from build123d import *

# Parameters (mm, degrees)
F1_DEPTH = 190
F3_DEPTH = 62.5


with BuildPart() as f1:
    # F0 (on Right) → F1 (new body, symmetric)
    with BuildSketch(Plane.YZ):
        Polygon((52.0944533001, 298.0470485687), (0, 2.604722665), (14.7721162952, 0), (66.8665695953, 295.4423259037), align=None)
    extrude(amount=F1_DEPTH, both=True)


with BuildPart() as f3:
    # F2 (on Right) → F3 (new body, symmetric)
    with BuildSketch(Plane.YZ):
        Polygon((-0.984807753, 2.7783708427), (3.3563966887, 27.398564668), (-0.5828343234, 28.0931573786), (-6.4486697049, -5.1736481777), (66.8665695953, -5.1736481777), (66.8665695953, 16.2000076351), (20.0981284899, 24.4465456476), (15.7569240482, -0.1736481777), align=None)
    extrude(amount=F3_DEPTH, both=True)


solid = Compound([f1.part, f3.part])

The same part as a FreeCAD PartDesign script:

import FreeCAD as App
import Part
import Sketcher
from FreeCAD import Vector
Q = App.Units.Quantity


def add_polygon(sketch, points):
    """Adds a closed chain of lines whose ends are joined by coincident constraints."""
    first, n = sketch.GeometryCount, len(points)
    for a, b in zip(points, points[1:] + points[:1]):
        sketch.addGeometry(Part.LineSegment(App.Vector(*a, 0), App.Vector(*b, 0)), False)
    for i in range(n):
        sketch.addConstraint(Sketcher.Constraint("Coincident", first + i, 2, first + (i + 1) % n, 1))

doc = App.newDocument("Part")
body = doc.addObject("PartDesign::Body", "Body")

# Sketch on YZ plane
sketch1 = body.newObject("Sketcher::SketchObject", "Sketch")
sketch1.AttachmentSupport = (doc.getObject("YZ_Plane"), [""])
sketch1.MapMode = "FlatFace"
add_polygon(sketch1, [(52, 298), (0, 3), (15, 0), (67, 295)])  # lines 0-3
sketch1.addConstraint(Sketcher.Constraint("PointOnObject", 0, 2, -2))
sketch1.addConstraint(Sketcher.Constraint("PointOnObject", 1, 2, -1))
sketch1.addConstraint(Sketcher.Constraint("Perpendicular", 0, 1))
sketch1.addConstraint(Sketcher.Constraint("Perpendicular", 1, 2))
sketch1.addConstraint(Sketcher.Constraint("Perpendicular", 2, 3))
sketch1.addConstraint(Sketcher.Constraint("Angle", 0, Q("-100 deg")))
sketch1.addConstraint(Sketcher.Constraint("Distance", 0, 300.0))
sketch1.addConstraint(Sketcher.Constraint("Distance", 1, 15.0))
pad1 = body.newObject("PartDesign::Pad", "Pad")
pad1.Profile = sketch1
pad1.Length = 380
pad1.Midplane = True
body2 = doc.addObject("PartDesign::Body", "Body001")

# Sketch on YZ plane
sketch2 = body2.newObject("Sketcher::SketchObject", "Sketch001")
sketch2.AttachmentSupport = (doc.getObject("YZ_Plane001"), [""])
sketch2.MapMode = "FlatFace"
add_polygon(sketch2, [(-1, 2.8), (3.4, 27.4), (-0.6, 28.1), (-6.4, -5.2), (66.9, -5.2), (66.9, 16.2), (20.1, 24.4), (15.8, -0.2)])  # lines 0-7
sketch2.addConstraint(Sketcher.Constraint("Horizontal", 3))
sketch2.addConstraint(Sketcher.Constraint("Vertical", 4))
sketch2.addConstraint(Sketcher.Constraint("Perpendicular", 0, 1))
sketch2.addConstraint(Sketcher.Constraint("Perpendicular", 1, 2))
sketch2.addConstraint(Sketcher.Constraint("Perpendicular", 2, 5))
sketch2.addConstraint(Sketcher.Constraint("Perpendicular", 5, 6))
sketch2.addConstraint(Sketcher.Constraint("Perpendicular", 6, 7))
sketch2.addConstraint(Sketcher.Constraint("Equal", 0, 6))
sketch2.addConstraint(Sketcher.Constraint("Angle", 0, Q("80 deg")))
sketch2.addConstraint(Sketcher.Constraint("Distance", 0, 25.0))
sketch2.addConstraint(Sketcher.Constraint("Distance", 1, 4.0))
sketch2.addConstraint(Sketcher.Constraint("Distance", 7, 17.0))
sketch2.addConstraint(Sketcher.Constraint("DistanceY", 2, 2, 6, 2, 5.0))
sketch2.addConstraint(Sketcher.Constraint("DistanceX", 3, 1, 3, 2, 73.315239))
sketch2.addConstraint(Sketcher.Constraint("DistanceX", 2, 2, -1, 1, 6.44867))
sketch2.addConstraint(Sketcher.Constraint("DistanceY", 2, 2, -1, 1, 5.173648))
pad2 = body2.newObject("PartDesign::Pad", "Pad001")
pad2.Profile = sketch2
pad2.Length = 125
pad2.Midplane = True

doc.recompute()
